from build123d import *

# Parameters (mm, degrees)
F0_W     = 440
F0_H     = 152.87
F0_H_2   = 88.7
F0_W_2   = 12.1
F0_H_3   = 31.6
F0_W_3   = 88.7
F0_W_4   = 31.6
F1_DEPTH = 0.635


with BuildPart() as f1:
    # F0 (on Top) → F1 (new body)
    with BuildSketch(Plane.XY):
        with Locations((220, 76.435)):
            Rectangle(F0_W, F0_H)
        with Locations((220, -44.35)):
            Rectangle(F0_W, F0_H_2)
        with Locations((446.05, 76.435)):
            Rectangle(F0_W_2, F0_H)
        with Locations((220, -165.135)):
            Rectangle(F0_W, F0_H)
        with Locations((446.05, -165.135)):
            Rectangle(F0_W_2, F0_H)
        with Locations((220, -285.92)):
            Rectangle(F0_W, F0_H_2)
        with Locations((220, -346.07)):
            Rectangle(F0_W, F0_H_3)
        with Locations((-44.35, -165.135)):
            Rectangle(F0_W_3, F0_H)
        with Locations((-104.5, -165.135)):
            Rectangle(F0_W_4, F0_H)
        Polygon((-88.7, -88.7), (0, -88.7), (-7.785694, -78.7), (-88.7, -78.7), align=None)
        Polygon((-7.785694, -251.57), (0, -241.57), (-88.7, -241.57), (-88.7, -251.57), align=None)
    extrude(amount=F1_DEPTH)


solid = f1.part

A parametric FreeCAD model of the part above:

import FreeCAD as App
import Part
import Sketcher

V = App.Vector
Q = App.Units.Quantity

doc = App.newDocument("Part")
params = doc.addObject("Spreadsheet::Sheet", "Params")
for row, (alias, value) in enumerate([
    ("sketch1_width", "440 mm"),
    ("sketch1_height", "10 mm"),
    ("sketch1_width2", "31.6 mm"),
    ("sketch1_width3", "12.1 mm"),
    ("sketch1_height2", "120.3 mm"),
    ("pad1_length", "0.635 mm"),
], start=1):
    params.set(f"A{row}", alias)
    params.set(f"B{row}", "=" + value)
    params.setAlias(f"B{row}", alias)

body = doc.addObject("PartDesign::Body", "Body")

# Sketch on XY plane
sketch1 = body.newObject("Sketcher::SketchObject", "Sketch")
sketch1.AttachmentSupport = (doc.getObject("XY_Plane"), [""])
sketch1.MapMode = "FlatFace"
sketch1.addGeometry(Part.LineSegment(V(0, 152.87, 0), V(0, -88.7, 0)), False)
sketch1.addGeometry(Part.LineSegment(V(0, -88.7, 0), V(-7.785694, -78.7, 0)), False)
sketch1.addGeometry(Part.LineSegment(V(-7.785694, -78.7, 0), V(-88.7, -78.7, 0)), False)
sketch1.addGeometry(Part.LineSegment(V(-88.7, -78.7, 0), V(-88.7, -88.7, 0)), False)
sketch1.addGeometry(Part.LineSegment(V(-88.7, -88.7, 0), V(-120.3, -88.7, 0)), False)
sketch1.addGeometry(Part.LineSegment(V(-120.3, -88.7, 0), V(-120.3, -241.57, 0)), False)
sketch1.addGeometry(Part.LineSegment(V(-120.3, -241.57, 0), V(-88.7, -241.57, 0)), False)
sketch1.addGeometry(Part.LineSegment(V(-88.7, -241.57, 0), V(-88.7, -251.57, 0)), False)
sketch1.addGeometry(Part.LineSegment(V(-88.7, -251.57, 0), V(-7.785694, -251.57, 0)), False)
sketch1.addGeometry(Part.LineSegment(V(-7.785694, -251.57, 0), V(0, -241.57, 0)), False)
sketch1.addGeometry(Part.LineSegment(V(0, -241.57, 0), V(0, -361.87, 0)), False)
sketch1.addGeometry(Part.LineSegment(V(0, -361.87, 0), V(440, -361.87, 0)), False)
sketch1.addGeometry(Part.LineSegment(V(440, -361.87, 0), V(440, -241.57, 0)), False)
sketch1.addGeometry(Part.LineSegment(V(440, -241.57, 0), V(452.1, -241.57, 0)), False)
sketch1.addGeometry(Part.LineSegment(V(452.1, -241.57, 0), V(452.1, -88.7, 0)), False)
sketch1.addGeometry(Part.LineSegment(V(452.1, -88.7, 0), V(440, -88.7, 0)), False)
sketch1.addGeometry(Part.LineSegment(V(440, -88.7, 0), V(440, 0, 0)), False)
sketch1.addGeometry(Part.LineSegment(V(440, 0, 0), V(452.1, 0, 0)), False)
sketch1.addGeometry(Part.LineSegment(V(452.1, 0, 0), V(452.1, 152.87, 0)), False)
sketch1.addGeometry(Part.LineSegment(V(452.1, 152.87, 0), V(0, 152.87, 0)), False)
sketch1.addConstraint(Sketcher.Constraint("Coincident", 0, 2, 1, 1))
sketch1.addConstraint(Sketcher.Constraint("Coincident", 1, 2, 2, 1))
sketch1.addConstraint(Sketcher.Constraint("Coincident", 2, 2, 3, 1))
sketch1.addConstraint(Sketcher.Constraint("Coincident", 3, 2, 4, 1))
sketch1.addConstraint(Sketcher.Constraint("Coincident", 4, 2, 5, 1))
sketch1.addConstraint(Sketcher.Constraint("Coincident", 5, 2, 6, 1))
sketch1.addConstraint(Sketcher.Constraint("Coincident", 6, 2, 7, 1))
sketch1.addConstraint(Sketcher.Constraint("Coincident", 7, 2, 8, 1))
sketch1.addConstraint(Sketcher.Constraint("Coincident", 8, 2, 9, 1))
sketch1.addConstraint(Sketcher.Constraint("Coincident", 9, 2, 10, 1))
sketch1.addConstraint(Sketcher.Constraint("Coincident", 10, 2, 11, 1))
sketch1.addConstraint(Sketcher.Constraint("Coincident", 11, 2, 12, 1))
sketch1.addConstraint(Sketcher.Constraint("Coincident", 12, 2, 13, 1))
sketch1.addConstraint(Sketcher.Constraint("Coincident", 13, 2, 14, 1))
sketch1.addConstraint(Sketcher.Constraint("Coincident", 14, 2, 15, 1))
sketch1.addConstraint(Sketcher.Constraint("Coincident", 15, 2, 16, 1))
sketch1.addConstraint(Sketcher.Constraint("Coincident", 16, 2, 17, 1))
sketch1.addConstraint(Sketcher.Constraint("Coincident", 17, 2, 18, 1))
sketch1.addConstraint(Sketcher.Constraint("Coincident", 18, 2, 19, 1))
sketch1.addConstraint(Sketcher.Constraint("Coincident", 19, 2, 0, 1))
sketch1.addConstraint(Sketcher.Constraint("Vertical", 0))
sketch1.addConstraint(Sketcher.Constraint("Horizontal", 2))
sketch1.addConstraint(Sketcher.Constraint("Vertical", 3))
sketch1.addConstraint(Sketcher.Constraint("Horizontal", 4))
sketch1.addConstraint(Sketcher.Constraint("Vertical", 5))
sketch1.addConstraint(Sketcher.Constraint("Horizontal", 6))
sketch1.addConstraint(Sketcher.Constraint("Vertical", 7))
sketch1.addConstraint(Sketcher.Constraint("Horizontal", 8))
sketch1.addConstraint(Sketcher.Constraint("Vertical", 10))
sketch1.addConstraint(Sketcher.Constraint("Horizontal", 11))
sketch1.addConstraint(Sketcher.Constraint("Vertical", 12))
sketch1.addConstraint(Sketcher.Constraint("Horizontal", 13))
sketch1.addConstraint(Sketcher.Constraint("Vertical", 14))
sketch1.addConstraint(Sketcher.Constraint("Horizontal", 15))
sketch1.addConstraint(Sketcher.Constraint("Vertical", 16))
sketch1.addConstraint(Sketcher.Constraint("Horizontal", 17))
sketch1.addConstraint(Sketcher.Constraint("Vertical", 18))
sketch1.addConstraint(Sketcher.Constraint("Horizontal", 19))
sketch1.addConstraint(Sketcher.Constraint("PointOnObject", 0, 2, -2))
sketch1.addConstraint(Sketcher.Constraint("PointOnObject", 9, 2, -2))
sketch1.addConstraint(Sketcher.Constraint("PointOnObject", 16, 2, -1))
sketch1.addConstraint(Sketcher.Constraint("Horizontal", 0, 2, 3, 2))
sketch1.addConstraint(Sketcher.Constraint("Horizontal", 6, 2, 9, 2))
sketch1.addConstraint(Sketcher.Constraint("Horizontal", 9, 2, 12, 2))
sketch1.addConstraint(Sketcher.Constraint("Horizontal", 4, 2, 14, 2))
sketch1.addConstraint(Sketcher.Constraint("Vertical", 3, 2, 6, 2))
sketch1.addConstraint(Sketcher.Constraint("Vertical", 1, 2, 8, 2))
sketch1.addConstraint(Sketcher.Constraint("Vertical", 12, 2, 15, 2))
sketch1.addConstraint(Sketcher.Constraint("Vertical", 14, 2, 17, 2))
sketch1.addConstraint(Sketcher.Constraint("Equal", 3, 7))
sketch1.addConstraint(Sketcher.Constraint("Equal", 14, 18))
sketch1.addConstraint(Sketcher.Constraint("DistanceX", 11, 1, 11, 2, Q("440 mm")))
sketch1.addConstraint(Sketcher.Constraint("DistanceY", 3, 2, 3, 1, Q("10 mm")))
sketch1.addConstraint(Sketcher.Constraint("DistanceX", 4, 2, 4, 1, Q("31.6 mm")))
sketch1.addConstraint(Sketcher.Constraint("DistanceX", 13, 1, 13, 2, Q("12.1 mm")))
sketch1.addConstraint(Sketcher.Constraint("DistanceY", 10, 2, 10, 1, Q("120.3 mm")))
sketch1.addConstraint(Sketcher.Constraint("DistanceY", 16, 1, 16, 2, Q("88.7 mm")))
sketch1.addConstraint(Sketcher.Constraint("DistanceY", 0, 2, 0, 1, Q("241.57 mm")))
sketch1.addConstraint(Sketcher.Constraint("DistanceX", 2, 2, -1, 1, Q("88.7 mm")))
sketch1.addConstraint(Sketcher.Constraint("DistanceX", 2, 2, 2, 1, Q("80.914306 mm")))
sketch1.setExpression("Constraints[51]", "Params.sketch1_width")
sketch1.setExpression("Constraints[52]", "Params.sketch1_height")
sketch1.setExpression("Constraints[53]", "Params.sketch1_width2")
sketch1.setExpression("Constraints[54]", "Params.sketch1_width3")
sketch1.setExpression("Constraints[55]", "Params.sketch1_height2")
pad1 = body.newObject("PartDesign::Pad", "Pad")
pad1.Profile = sketch1
pad1.setExpression("Length", "Params.pad1_length")

doc.recompute()
